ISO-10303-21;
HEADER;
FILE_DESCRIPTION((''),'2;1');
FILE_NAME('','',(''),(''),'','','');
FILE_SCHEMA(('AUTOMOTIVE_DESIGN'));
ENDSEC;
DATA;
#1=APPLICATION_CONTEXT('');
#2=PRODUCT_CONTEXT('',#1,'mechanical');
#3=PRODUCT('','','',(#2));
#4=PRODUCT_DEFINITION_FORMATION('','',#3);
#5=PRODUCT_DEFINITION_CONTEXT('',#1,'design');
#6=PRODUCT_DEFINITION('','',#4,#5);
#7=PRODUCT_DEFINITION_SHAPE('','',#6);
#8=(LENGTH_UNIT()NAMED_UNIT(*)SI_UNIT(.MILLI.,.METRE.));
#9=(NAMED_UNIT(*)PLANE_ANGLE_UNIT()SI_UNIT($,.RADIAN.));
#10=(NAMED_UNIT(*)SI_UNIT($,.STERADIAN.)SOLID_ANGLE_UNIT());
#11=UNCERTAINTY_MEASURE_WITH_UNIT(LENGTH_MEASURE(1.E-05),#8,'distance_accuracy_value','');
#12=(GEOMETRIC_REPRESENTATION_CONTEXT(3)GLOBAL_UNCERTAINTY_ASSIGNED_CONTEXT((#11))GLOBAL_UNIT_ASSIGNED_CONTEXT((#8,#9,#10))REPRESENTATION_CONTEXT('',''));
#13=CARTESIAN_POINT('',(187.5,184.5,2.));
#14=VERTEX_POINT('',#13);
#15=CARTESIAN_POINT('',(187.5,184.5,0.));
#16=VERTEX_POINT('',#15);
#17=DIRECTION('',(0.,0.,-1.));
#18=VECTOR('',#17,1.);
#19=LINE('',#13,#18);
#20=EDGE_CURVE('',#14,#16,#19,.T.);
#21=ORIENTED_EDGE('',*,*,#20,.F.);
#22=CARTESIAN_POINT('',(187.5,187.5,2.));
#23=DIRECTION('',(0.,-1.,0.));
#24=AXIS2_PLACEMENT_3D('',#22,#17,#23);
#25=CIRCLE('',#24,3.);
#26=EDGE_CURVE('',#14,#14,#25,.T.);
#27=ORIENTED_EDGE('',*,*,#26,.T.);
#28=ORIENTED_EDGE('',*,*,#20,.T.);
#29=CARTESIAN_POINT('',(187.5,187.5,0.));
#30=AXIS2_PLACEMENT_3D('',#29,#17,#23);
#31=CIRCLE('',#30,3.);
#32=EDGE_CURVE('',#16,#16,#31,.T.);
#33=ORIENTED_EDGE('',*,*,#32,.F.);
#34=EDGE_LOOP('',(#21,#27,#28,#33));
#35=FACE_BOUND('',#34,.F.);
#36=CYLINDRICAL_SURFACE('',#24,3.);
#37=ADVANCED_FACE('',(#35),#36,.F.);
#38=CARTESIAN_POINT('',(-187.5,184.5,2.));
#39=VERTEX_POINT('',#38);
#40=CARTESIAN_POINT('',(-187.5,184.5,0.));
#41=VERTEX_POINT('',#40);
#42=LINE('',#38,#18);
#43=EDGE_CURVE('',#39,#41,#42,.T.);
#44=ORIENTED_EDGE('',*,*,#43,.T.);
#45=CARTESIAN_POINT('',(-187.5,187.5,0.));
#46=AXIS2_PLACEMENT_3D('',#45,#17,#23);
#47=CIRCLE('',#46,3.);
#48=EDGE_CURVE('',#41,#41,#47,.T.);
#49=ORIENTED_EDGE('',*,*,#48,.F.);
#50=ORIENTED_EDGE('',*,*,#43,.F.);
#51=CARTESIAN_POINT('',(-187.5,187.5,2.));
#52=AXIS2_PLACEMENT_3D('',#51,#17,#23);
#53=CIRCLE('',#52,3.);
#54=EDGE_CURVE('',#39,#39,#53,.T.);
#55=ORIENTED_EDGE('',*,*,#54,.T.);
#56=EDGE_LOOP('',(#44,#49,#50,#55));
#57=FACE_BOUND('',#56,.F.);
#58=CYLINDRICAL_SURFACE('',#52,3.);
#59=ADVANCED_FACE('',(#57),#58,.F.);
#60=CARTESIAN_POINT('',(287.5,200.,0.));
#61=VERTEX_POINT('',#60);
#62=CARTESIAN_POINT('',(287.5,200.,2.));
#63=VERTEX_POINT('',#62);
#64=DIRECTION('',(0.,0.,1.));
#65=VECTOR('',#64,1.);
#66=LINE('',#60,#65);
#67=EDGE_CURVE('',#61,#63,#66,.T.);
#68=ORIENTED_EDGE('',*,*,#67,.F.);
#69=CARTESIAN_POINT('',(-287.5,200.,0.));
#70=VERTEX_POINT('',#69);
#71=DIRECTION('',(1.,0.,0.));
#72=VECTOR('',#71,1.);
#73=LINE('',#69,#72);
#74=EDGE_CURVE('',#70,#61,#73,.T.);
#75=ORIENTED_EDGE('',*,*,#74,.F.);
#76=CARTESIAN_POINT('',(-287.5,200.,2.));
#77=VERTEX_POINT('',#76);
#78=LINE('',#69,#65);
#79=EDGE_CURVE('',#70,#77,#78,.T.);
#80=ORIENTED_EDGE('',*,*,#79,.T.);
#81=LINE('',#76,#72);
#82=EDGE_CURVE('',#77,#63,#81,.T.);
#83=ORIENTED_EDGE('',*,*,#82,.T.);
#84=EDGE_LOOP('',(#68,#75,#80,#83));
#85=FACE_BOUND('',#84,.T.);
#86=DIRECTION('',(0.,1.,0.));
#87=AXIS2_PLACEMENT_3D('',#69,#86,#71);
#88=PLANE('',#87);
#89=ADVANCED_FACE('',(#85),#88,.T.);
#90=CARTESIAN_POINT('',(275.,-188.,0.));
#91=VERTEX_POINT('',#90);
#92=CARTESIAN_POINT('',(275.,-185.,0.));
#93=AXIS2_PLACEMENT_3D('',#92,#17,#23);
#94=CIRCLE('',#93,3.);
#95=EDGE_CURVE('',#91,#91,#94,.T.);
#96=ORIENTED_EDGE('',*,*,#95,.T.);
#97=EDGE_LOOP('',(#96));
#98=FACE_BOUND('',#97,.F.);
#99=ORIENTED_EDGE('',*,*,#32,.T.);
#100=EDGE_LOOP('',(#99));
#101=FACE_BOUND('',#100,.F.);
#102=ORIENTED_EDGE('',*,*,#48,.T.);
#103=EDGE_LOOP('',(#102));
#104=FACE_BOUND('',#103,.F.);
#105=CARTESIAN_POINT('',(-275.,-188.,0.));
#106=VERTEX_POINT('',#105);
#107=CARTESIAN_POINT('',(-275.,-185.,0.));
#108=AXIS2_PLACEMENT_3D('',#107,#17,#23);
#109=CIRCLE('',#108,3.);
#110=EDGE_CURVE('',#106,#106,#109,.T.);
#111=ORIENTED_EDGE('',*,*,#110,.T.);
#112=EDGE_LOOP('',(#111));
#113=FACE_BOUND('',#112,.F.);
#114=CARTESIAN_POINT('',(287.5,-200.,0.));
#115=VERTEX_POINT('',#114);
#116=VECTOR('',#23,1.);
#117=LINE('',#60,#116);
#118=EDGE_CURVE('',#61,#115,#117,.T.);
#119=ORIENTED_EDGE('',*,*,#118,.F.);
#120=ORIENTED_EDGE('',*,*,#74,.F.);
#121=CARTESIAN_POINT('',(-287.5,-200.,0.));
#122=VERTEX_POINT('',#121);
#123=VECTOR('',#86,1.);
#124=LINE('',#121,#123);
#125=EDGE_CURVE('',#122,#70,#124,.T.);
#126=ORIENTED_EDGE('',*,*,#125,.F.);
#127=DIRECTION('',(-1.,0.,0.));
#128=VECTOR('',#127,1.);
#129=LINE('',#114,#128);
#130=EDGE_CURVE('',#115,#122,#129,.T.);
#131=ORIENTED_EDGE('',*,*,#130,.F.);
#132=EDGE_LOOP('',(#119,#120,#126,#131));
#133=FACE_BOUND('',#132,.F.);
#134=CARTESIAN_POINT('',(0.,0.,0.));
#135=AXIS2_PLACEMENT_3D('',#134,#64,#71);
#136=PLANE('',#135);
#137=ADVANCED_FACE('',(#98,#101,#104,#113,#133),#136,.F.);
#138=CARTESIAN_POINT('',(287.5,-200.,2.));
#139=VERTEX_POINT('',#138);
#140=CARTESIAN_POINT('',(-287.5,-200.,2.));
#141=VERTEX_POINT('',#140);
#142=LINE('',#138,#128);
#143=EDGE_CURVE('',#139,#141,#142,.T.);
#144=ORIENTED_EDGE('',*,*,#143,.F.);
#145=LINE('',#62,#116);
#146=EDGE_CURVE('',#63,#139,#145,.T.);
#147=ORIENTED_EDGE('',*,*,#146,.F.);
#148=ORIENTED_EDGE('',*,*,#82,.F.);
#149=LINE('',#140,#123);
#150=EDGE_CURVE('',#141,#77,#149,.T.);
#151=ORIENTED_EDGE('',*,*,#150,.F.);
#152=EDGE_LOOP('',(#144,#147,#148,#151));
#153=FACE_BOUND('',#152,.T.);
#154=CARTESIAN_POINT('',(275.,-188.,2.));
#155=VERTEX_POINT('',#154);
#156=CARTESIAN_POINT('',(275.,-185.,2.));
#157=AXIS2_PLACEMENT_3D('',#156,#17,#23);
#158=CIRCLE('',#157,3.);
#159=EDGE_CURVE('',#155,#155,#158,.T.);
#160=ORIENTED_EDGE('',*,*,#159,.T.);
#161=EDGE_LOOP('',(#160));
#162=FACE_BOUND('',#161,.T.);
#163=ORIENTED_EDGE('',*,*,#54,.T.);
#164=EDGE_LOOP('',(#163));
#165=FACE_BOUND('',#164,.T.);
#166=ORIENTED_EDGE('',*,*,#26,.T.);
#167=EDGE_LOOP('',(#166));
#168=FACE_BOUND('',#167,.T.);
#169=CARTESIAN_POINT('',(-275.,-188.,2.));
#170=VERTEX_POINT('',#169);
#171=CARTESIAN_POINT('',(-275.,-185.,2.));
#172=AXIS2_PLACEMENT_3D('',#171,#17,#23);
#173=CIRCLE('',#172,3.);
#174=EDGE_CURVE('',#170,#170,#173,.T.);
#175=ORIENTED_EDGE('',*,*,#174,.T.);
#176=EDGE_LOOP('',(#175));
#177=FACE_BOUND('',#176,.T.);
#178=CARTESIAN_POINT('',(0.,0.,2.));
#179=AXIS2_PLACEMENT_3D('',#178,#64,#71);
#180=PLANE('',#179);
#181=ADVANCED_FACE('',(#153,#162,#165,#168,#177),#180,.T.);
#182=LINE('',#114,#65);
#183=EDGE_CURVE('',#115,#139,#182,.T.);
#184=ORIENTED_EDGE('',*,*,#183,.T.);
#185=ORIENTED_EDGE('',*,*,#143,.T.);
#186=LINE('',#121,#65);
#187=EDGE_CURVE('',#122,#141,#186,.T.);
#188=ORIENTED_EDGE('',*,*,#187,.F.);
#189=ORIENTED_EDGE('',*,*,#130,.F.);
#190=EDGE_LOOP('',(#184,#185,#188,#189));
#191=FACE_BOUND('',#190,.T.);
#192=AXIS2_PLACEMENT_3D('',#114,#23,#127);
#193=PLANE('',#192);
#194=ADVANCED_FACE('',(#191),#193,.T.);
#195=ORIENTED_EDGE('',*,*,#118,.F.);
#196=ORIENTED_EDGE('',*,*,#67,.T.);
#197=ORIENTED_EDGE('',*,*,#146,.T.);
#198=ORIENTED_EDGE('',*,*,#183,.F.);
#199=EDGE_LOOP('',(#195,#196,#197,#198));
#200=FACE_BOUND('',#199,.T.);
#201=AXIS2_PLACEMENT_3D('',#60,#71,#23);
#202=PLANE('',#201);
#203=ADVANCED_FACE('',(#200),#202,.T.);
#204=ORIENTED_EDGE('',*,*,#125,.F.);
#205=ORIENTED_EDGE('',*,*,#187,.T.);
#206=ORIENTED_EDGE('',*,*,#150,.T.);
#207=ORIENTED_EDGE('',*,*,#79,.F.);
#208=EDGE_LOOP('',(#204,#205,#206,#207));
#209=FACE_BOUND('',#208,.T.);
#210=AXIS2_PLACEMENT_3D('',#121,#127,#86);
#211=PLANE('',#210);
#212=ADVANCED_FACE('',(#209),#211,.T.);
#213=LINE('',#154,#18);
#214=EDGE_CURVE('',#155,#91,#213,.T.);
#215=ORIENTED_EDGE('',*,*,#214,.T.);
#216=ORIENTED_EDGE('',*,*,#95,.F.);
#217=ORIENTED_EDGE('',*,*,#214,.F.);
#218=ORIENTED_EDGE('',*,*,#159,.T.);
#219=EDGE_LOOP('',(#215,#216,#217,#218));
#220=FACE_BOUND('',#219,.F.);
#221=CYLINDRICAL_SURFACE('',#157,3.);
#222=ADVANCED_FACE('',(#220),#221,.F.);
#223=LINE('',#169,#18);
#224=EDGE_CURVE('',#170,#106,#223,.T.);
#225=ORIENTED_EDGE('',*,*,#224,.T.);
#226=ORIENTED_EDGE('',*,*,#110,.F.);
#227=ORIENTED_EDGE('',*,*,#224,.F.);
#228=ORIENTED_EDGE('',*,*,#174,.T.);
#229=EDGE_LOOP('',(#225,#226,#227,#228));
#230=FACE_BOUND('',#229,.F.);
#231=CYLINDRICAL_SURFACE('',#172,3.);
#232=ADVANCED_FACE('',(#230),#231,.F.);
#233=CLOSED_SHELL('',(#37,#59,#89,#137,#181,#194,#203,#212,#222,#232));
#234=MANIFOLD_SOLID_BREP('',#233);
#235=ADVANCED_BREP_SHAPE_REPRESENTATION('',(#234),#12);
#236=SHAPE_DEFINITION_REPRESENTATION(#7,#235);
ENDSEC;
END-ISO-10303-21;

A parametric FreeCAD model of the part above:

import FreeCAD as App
import Part
import Sketcher
from FreeCAD import Vector
Q = App.Units.Quantity

doc = App.newDocument("Part")
body = doc.addObject("PartDesign::Body", "Body")

# Sketch on XY plane
sketch1 = doc.addObject("Sketcher::SketchObject", "Sketch")
body.addObject(sketch1)
sketch1.AttachmentSupport = (doc.XY_Plane, [""])
sketch1.MapMode = "FlatFace"
sketch1.addGeometry(Part.LineSegment(Vector(288, 200, 0), Vector(-288, 200, 0)), False)
sketch1.addGeometry(Part.LineSegment(Vector(-288, 200, 0), Vector(-288, -200, 0)), False)
sketch1.addGeometry(Part.LineSegment(Vector(-288, -200, 0), Vector(288, -200, 0)), False)
sketch1.addGeometry(Part.LineSegment(Vector(288, -200, 0), Vector(288, 200, 0)), False)
sketch1.addConstraint(Sketcher.Constraint("Coincident", 0, 2, 1, 1))
sketch1.addConstraint(Sketcher.Constraint("Coincident", 1, 2, 2, 1))
sketch1.addConstraint(Sketcher.Constraint("Coincident", 2, 2, 3, 1))
sketch1.addConstraint(Sketcher.Constraint("Coincident", 3, 2, 0, 1))
sketch1.addConstraint(Sketcher.Constraint("Horizontal", 0))
sketch1.addConstraint(Sketcher.Constraint("Vertical", 1))
sketch1.addConstraint(Sketcher.Constraint("Horizontal", 2))
sketch1.addConstraint(Sketcher.Constraint("Vertical", 3))
sketch1.addConstraint(Sketcher.Constraint("Symmetric", 0, 2, 2, 2, -1, 1))
sketch1.addConstraint(Sketcher.Constraint("DistanceX", 0, 2, 0, 1, Q("575 mm")))
sketch1.addConstraint(Sketcher.Constraint("DistanceY", 1, 2, 1, 1, Q("400 mm")))
pad1 = doc.addObject("PartDesign::Pad", "Pad")
body.addObject(pad1)
pad1.Profile = sketch1
pad1.Length = 2

# Sketch on XY plane
sketch2 = doc.addObject("Sketcher::SketchObject", "Sketch001")
body.addObject(sketch2)
sketch2.AttachmentSupport = (doc.XY_Plane, [""])
sketch2.MapMode = "FlatFace"
sketch2.AttachmentOffset = App.Placement(Vector(0, 0, 2), App.Rotation())
sketch2.addGeometry(Part.Circle(Vector(187.5, 187.5, 0), Vector(0, 0, 1), 3), False)
sketch2.addGeometry(Part.Circle(Vector(275, -185, 0), Vector(0, 0, 1), 3), False)
sketch2.addGeometry(Part.Circle(Vector(-187.5, 187.5, 0), Vector(0, 0, 1), 3), False)
sketch2.addGeometry(Part.Circle(Vector(-275, -185, 0), Vector(0, 0, 1), 3), False)
sketch2.addConstraint(Sketcher.Constraint("Equal", 0, 1))
sketch2.addConstraint(Sketcher.Constraint("Equal", 1, 2))
sketch2.addConstraint(Sketcher.Constraint("Equal", 2, 3))
sketch2.addConstraint(Sketcher.Constraint("Symmetric", 0, 3, 2, 3, -2))
sketch2.addConstraint(Sketcher.Constraint("Symmetric", 1, 3, 3, 3, -2))
sketch2.addConstraint(Sketcher.Constraint("Diameter", 0, Q("6 mm")))
sketch2.addConstraint(Sketcher.Constraint("DistanceX", -1, 1, 1, 3, Q("275 mm")))
sketch2.addConstraint(Sketcher.Constraint("DistanceY", 1, 3, -1, 1, Q("185 mm")))
sketch2.addConstraint(Sketcher.Constraint("DistanceX", 2, 3, 0, 3, Q("375 mm")))
sketch2.addConstraint(Sketcher.Constraint("DistanceY", -1, 1, 0, 3, Q("187.5 mm")))
doc.recompute()
hole = doc.addObject("PartDesign::Hole", "Hole")
body.addObject(hole)
hole.Profile = sketch2
hole.ThreadType = "None"
hole.Diameter = 6
hole.DepthType = "ThroughAll"

doc.recompute()
